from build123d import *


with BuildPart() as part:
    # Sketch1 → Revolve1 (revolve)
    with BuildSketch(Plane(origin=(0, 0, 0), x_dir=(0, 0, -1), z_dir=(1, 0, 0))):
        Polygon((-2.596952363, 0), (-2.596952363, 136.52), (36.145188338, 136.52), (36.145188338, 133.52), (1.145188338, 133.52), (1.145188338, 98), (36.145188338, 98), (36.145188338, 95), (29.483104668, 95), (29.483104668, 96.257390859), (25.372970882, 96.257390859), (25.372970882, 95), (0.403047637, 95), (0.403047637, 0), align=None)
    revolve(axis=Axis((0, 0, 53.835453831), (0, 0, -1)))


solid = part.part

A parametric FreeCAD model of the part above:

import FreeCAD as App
import Part
import Sketcher


def add_polygon(sketch, points):
    """Adds a closed chain of lines whose ends are joined by coincident constraints."""
    first, n = sketch.GeometryCount, len(points)
    for a, b in zip(points, points[1:] + points[:1]):
        sketch.addGeometry(Part.LineSegment(App.Vector(*a, 0), App.Vector(*b, 0)), False)
    for i in range(n):
        sketch.addConstraint(Sketcher.Constraint("Coincident", first + i, 2, first + (i + 1) % n, 1))

doc = App.newDocument("Part")
params = doc.addObject("Spreadsheet::Sheet", "Params")
for row, (alias, value) in enumerate([
    ("sketch1_width", "95 mm"),
    ("sketch1_width2", "3 mm"),
    ("sketch1_height", "35 mm"),
    ("sketch1_width3", "136.52 mm"),
    ("revolution_angle", "360 deg"),
], start=1):
    params.set(f"A{row}", alias)
    params.set(f"B{row}", "=" + value)
    params.setAlias(f"B{row}", alias)

body = doc.addObject("PartDesign::Body", "Body")

sketch1 = body.newObject("Sketcher::SketchObject", "Sketch")
sketch1.AttachmentSupport = (doc.getObject("YZ_Plane"), [""])
sketch1.MapMode = "FlatFace"
add_polygon(sketch1, [(136.52, 2.596952), (0, 2.596952), (0, -0.403048), (95, -0.403048), (95, -25.372971), (96.257391, -25.372971), (96.257391, -29.483105), (95, -29.483105), (95, -36.145188), (98, -36.145188), (98, -1.145188), (133.52, -1.145188), (133.52, -36.145188), (136.52, -36.145188)])
sketch1.addConstraint([
    Sketcher.Constraint("Horizontal", 0),
    Sketcher.Constraint("Vertical", 1),
    Sketcher.Constraint("Horizontal", 2),
    Sketcher.Constraint("Vertical", 3),
    Sketcher.Constraint("Horizontal", 4),
    Sketcher.Constraint("Vertical", 5),
    Sketcher.Constraint("Horizontal", 6),
    Sketcher.Constraint("Vertical", 7),
    Sketcher.Constraint("Horizontal", 8),
    Sketcher.Constraint("Vertical", 9),
    Sketcher.Constraint("Horizontal", 10),
    Sketcher.Constraint("Vertical", 11),
    Sketcher.Constraint("Horizontal", 12),
    Sketcher.Constraint("Vertical", 13),
    Sketcher.Constraint("PointOnObject", 0, 2, -2),
    Sketcher.Constraint("Horizontal", 8, 2, 11, 2),
    Sketcher.Constraint("Vertical", 3, 2, 6, 2),
    Sketcher.Constraint("Equal", 8, 12),
    Sketcher.Constraint("Equal", 12, 1),
    Sketcher.Constraint("DistanceX", 2, 1, 2, 2, 95.0),
    Sketcher.Constraint("DistanceX", 8, 1, 8, 2, 3.0),
    Sketcher.Constraint("DistanceY", 9, 1, 9, 2, 35.0),
    Sketcher.Constraint("DistanceX", 0, 2, 0, 1, 136.52),
    Sketcher.Constraint("DistanceX", 4, 1, 4, 2, 1.257391),
    Sketcher.Constraint("DistanceY", 13, 1, 13, 2, 38.742141),
    Sketcher.Constraint("DistanceY", 3, 2, 3, 1, 24.969923),
    Sketcher.Constraint("DistanceY", 5, 2, 5, 1, 4.110134),
    Sketcher.Constraint("DistanceY", 3, 2, -1, 1, 25.372971),
])
sketch1.setExpression("Constraints[33]", "Params.sketch1_width")
sketch1.setExpression("Constraints[34]", "Params.sketch1_width2")
sketch1.setExpression("Constraints[35]", "Params.sketch1_height")
sketch1.setExpression("Constraints[36]", "Params.sketch1_width3")
revolution = body.newObject("PartDesign::Revolution", "Revolution")
revolution.Profile = sketch1
revolution.ReferenceAxis = (sketch1, ["V_Axis"])
revolution.setExpression("Angle", "Params.revolution_angle")

doc.recompute()
